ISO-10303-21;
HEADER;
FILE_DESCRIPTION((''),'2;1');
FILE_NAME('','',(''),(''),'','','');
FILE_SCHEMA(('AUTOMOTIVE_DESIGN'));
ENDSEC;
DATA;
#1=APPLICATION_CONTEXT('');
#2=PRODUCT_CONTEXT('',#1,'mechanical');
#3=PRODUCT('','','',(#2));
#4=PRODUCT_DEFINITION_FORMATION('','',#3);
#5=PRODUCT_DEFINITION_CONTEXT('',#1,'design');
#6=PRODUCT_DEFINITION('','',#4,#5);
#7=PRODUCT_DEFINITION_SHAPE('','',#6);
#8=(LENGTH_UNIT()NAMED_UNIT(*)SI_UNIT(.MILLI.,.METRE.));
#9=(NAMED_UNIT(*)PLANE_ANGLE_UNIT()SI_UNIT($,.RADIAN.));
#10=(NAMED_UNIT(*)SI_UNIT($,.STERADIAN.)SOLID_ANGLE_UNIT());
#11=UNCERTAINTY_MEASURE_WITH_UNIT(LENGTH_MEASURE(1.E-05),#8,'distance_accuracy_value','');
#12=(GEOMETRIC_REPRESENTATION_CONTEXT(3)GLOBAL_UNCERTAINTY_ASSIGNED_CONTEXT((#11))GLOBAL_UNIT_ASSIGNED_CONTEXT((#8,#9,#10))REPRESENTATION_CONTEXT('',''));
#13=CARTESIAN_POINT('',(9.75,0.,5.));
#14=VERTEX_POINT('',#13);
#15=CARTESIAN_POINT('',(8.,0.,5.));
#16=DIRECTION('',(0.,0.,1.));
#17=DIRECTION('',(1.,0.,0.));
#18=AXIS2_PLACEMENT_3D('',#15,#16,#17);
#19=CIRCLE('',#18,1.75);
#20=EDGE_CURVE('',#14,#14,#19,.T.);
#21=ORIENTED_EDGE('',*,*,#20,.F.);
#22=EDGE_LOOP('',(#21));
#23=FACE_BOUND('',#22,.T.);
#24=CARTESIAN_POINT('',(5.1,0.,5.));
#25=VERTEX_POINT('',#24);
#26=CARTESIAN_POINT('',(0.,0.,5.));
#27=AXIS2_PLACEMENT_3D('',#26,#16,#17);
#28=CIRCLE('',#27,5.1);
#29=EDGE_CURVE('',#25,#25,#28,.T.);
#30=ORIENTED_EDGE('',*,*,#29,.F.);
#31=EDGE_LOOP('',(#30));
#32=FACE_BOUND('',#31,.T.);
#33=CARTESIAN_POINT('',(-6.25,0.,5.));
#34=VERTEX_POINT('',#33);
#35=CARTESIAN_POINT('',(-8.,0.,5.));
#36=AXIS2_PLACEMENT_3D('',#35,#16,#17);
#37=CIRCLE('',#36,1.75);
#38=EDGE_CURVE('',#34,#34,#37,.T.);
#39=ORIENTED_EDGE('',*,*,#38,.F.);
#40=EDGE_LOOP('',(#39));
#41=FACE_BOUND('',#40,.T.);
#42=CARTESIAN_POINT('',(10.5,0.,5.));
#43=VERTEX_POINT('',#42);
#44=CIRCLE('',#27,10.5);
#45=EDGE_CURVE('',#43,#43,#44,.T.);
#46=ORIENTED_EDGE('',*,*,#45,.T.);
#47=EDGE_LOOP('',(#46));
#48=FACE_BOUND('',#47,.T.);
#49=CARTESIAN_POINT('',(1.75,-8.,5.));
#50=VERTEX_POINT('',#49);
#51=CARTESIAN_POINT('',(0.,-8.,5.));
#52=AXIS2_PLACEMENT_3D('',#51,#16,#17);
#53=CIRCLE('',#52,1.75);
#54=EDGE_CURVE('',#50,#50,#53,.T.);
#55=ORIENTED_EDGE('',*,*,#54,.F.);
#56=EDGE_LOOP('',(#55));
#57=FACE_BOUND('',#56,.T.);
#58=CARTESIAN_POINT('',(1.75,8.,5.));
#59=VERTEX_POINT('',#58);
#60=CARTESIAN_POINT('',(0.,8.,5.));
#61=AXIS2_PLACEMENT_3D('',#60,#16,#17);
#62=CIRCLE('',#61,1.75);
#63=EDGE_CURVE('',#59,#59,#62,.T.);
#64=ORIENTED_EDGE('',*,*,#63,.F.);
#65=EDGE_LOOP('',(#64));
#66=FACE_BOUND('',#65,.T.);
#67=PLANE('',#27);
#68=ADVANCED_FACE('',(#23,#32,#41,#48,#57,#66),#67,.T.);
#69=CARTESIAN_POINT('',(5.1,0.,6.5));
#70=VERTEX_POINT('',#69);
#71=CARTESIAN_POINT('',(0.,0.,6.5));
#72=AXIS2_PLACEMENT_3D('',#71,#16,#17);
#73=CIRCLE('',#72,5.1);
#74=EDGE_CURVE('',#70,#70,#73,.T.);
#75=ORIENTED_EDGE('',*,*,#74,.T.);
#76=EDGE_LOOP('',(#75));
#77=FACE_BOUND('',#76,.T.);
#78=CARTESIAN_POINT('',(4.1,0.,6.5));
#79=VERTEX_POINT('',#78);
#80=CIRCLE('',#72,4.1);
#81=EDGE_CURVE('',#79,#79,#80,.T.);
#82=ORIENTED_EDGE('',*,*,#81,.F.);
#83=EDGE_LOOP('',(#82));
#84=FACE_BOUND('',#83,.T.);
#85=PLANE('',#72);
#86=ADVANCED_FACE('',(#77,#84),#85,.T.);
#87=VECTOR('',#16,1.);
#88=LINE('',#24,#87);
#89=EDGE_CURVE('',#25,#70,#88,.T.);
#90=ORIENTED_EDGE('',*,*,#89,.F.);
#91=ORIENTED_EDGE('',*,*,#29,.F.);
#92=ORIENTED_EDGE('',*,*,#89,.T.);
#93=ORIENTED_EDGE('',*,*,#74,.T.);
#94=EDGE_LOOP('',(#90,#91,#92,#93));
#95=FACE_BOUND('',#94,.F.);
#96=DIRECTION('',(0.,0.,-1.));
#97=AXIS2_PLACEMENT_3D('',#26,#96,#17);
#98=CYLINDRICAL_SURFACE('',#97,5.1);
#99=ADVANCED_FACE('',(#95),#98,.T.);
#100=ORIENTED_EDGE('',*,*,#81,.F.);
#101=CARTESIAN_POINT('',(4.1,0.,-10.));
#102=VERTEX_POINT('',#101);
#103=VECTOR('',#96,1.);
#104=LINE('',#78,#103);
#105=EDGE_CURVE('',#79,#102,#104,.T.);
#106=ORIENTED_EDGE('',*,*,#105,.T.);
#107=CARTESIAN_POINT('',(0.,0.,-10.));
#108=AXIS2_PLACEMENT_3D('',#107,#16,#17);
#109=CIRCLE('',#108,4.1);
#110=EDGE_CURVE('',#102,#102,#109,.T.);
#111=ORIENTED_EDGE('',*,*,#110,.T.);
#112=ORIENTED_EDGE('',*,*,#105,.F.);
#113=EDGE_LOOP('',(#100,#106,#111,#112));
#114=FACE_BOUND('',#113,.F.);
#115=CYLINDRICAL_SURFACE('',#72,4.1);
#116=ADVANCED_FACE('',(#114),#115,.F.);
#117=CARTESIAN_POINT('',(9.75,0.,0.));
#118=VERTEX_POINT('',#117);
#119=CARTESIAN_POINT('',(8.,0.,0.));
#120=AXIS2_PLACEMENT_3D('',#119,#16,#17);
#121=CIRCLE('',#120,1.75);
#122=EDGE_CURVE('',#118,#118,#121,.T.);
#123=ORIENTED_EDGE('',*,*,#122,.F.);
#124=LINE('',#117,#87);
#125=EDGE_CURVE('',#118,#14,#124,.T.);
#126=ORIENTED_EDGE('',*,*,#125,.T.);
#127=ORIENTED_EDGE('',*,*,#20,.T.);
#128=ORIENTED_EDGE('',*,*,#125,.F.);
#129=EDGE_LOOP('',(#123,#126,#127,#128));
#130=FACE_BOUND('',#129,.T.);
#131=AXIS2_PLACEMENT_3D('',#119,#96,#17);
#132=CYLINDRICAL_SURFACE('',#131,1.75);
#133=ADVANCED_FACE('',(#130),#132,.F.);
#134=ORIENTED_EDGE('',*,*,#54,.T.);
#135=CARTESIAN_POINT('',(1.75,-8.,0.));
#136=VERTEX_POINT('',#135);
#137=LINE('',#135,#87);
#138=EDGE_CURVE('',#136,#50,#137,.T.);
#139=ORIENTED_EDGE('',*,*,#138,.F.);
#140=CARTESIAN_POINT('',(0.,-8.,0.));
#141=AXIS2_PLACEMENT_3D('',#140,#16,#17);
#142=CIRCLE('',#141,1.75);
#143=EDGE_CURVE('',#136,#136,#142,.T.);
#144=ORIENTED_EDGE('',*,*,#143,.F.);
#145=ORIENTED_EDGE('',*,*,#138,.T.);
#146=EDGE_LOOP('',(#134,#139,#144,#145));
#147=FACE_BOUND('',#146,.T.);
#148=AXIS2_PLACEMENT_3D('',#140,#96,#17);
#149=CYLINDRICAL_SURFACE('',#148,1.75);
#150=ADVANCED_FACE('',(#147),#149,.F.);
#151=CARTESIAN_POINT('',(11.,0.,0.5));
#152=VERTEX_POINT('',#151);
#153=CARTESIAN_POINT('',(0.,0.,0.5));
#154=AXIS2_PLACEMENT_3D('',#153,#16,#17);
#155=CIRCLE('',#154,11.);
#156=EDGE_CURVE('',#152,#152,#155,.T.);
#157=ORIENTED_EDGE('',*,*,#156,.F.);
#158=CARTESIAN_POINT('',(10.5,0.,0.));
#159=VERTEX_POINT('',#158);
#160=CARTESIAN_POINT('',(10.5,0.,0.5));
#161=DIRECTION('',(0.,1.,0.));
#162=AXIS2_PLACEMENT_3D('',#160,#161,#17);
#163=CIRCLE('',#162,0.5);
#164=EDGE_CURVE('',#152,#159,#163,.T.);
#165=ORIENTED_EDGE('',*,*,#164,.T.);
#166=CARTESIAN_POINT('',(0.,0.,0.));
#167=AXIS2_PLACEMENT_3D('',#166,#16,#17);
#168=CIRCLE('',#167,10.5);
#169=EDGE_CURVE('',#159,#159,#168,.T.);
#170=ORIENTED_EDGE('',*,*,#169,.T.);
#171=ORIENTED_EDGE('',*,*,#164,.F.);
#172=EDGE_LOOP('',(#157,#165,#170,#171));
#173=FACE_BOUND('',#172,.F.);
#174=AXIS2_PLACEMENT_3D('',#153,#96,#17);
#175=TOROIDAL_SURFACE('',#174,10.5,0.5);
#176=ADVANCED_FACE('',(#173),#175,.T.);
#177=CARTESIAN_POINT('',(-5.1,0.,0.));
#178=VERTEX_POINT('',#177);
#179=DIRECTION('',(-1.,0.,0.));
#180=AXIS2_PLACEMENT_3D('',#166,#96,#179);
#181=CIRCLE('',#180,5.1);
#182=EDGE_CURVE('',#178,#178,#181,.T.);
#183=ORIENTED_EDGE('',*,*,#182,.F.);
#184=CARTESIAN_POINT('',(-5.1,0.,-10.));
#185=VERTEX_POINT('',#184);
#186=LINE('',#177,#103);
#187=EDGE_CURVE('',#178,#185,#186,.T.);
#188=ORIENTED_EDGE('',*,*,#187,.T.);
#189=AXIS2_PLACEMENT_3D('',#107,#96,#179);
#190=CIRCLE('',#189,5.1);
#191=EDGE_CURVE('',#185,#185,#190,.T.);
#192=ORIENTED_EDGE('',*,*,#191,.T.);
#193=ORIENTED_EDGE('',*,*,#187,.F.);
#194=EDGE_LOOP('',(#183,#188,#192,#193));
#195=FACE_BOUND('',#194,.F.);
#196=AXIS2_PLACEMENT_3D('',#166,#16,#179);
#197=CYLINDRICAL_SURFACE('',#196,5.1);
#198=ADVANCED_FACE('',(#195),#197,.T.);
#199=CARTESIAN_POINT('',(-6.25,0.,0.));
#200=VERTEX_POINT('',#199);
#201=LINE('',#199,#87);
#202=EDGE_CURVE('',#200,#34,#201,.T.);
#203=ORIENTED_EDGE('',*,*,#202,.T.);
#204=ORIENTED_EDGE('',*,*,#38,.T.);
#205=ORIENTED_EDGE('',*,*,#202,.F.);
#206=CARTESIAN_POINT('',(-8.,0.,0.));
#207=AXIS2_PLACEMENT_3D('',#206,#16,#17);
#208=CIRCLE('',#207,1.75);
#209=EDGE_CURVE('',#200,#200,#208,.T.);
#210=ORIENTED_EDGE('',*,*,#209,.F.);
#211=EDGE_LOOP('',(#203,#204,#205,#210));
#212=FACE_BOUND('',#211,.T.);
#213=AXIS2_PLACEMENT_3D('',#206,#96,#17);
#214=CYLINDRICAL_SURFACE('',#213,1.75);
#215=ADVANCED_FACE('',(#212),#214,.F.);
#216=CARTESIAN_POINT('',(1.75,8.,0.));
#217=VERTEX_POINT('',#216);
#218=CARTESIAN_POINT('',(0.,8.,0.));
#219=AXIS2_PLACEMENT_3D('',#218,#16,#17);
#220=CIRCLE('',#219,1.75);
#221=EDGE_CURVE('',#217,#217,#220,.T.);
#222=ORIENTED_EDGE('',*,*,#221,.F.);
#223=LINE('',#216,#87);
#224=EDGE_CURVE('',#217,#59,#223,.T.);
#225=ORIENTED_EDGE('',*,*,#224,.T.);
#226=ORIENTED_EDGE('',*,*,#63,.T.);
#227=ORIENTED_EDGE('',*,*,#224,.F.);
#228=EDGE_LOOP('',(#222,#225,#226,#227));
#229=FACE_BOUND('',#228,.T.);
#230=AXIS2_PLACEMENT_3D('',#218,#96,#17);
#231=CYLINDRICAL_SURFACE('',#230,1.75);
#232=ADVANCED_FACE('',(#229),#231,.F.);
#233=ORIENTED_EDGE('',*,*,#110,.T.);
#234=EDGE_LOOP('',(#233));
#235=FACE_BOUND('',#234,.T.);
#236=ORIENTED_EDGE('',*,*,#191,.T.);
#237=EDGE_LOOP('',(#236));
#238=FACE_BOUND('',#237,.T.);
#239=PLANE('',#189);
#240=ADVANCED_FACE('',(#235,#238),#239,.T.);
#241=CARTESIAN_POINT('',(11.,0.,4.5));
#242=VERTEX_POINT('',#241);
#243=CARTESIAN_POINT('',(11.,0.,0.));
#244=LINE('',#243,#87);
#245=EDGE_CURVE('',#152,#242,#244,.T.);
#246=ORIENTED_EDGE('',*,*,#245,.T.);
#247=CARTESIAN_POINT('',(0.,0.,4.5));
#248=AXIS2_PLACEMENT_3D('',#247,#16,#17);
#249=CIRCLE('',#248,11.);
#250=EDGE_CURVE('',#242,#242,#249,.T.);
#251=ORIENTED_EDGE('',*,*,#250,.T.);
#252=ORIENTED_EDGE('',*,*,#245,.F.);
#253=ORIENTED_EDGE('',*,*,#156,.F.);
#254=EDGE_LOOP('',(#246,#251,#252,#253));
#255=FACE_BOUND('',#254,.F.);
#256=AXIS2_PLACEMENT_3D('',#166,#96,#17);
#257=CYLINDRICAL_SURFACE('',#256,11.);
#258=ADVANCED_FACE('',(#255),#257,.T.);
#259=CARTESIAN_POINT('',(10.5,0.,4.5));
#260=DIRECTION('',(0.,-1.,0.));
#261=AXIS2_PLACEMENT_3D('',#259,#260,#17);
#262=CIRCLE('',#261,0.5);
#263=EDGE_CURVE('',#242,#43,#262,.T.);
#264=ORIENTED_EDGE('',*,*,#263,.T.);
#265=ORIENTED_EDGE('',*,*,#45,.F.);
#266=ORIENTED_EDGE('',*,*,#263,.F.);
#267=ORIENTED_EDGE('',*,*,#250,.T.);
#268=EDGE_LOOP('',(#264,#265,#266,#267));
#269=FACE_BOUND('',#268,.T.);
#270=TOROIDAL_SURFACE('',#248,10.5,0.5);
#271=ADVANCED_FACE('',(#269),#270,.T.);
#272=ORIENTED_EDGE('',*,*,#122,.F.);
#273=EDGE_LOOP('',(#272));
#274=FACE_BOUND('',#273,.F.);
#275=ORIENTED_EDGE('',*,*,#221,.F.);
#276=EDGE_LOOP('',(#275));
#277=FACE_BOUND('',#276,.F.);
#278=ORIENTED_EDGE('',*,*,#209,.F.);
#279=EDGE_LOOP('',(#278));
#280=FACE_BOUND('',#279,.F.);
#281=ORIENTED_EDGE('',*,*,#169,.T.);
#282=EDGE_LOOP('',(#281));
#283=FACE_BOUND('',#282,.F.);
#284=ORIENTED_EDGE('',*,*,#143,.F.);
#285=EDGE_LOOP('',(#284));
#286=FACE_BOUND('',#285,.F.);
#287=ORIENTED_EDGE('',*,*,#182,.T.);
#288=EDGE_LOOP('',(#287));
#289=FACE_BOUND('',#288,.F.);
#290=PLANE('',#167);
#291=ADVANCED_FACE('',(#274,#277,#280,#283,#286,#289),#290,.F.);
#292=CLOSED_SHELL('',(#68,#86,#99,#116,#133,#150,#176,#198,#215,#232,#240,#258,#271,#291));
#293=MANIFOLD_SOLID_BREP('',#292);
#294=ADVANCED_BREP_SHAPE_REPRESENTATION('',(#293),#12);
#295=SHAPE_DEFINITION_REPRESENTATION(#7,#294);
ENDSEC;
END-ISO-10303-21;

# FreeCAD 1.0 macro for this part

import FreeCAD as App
import Part
import Sketcher
from FreeCAD import Vector


def edges_at(feature, points):
    """Names of the edges that pass closest to the given points."""
    edges = feature.Shape.Edges
    near = lambda p: min(range(len(edges)), key=lambda i: edges[i].distToShape(Part.Vertex(*p))[0])
    return sorted({f"Edge{near(p) + 1}" for p in points})

doc = App.newDocument("Part")
params = doc.addObject("Spreadsheet::Sheet", "Params")
for row, (alias, value) in enumerate([
    ("sketch1_diameter", "22 mm"),
    ("sketch1_diameter2", "3.5 mm"),
    ("pad1_length", "5 mm"),
    ("sketch2_diameter", "10.2 mm"),
    ("pad2_length", "1.5 mm"),
    ("sketch3_diameter", "10.2 mm"),
    ("pad3_length", "10 mm"),
    ("sketch4_diameter", "8.2 mm"),
    ("pocket1_length", "19.5 mm"),
    ("fillet_radius", "0.5 mm"),
], start=1):
    params.set(f"A{row}", alias)
    params.set(f"B{row}", "=" + value)
    params.setAlias(f"B{row}", alias)

body = doc.addObject("PartDesign::Body", "Body")

sketch1 = body.newObject("Sketcher::SketchObject", "Sketch")
sketch1.AttachmentSupport = (doc.getObject("XY_Plane"), [""])
sketch1.MapMode = "FlatFace"
sketch1.addGeometry([
    Part.Circle(Vector(0, 0, 0), Vector(0, 0, 1), 11),
    Part.Circle(Vector(0, -8, 0), Vector(0, 0, 1), 1.8),
    Part.Circle(Vector(-8, 0, 0), Vector(0, 0, 1), 1.8),
    Part.Circle(Vector(8, 0, 0), Vector(0, 0, 1), 1.8),
    Part.Circle(Vector(0, 8, 0), Vector(0, 0, 1), 1.8),
], False)
sketch1.addConstraint([
    Sketcher.Constraint("Coincident", 0, 3, -1, 1),
    Sketcher.Constraint("Equal", 1, 2),
    Sketcher.Constraint("Equal", 2, 3),
    Sketcher.Constraint("Equal", 3, 4),
    Sketcher.Constraint("Symmetric", 2, 3, 3, 3, -1, 1),
    Sketcher.Constraint("Symmetric", 1, 3, 4, 3, -1, 1),
    Sketcher.Constraint("PointOnObject", 1, 3, -2),
    Sketcher.Constraint("PointOnObject", 2, 3, -1),
    Sketcher.Constraint("Diameter", 0, 22.0),
    Sketcher.Constraint("Diameter", 1, 3.5),
    Sketcher.Constraint("DistanceX", 2, 3, 3, 3, 16.0),
    Sketcher.Constraint("DistanceY", 1, 3, 4, 3, 16.0),
])
sketch1.setExpression("Constraints[8]", "Params.sketch1_diameter")
sketch1.setExpression("Constraints[9]", "Params.sketch1_diameter2")
pad1 = body.newObject("PartDesign::Pad", "Pad")
pad1.Profile = sketch1
pad1.setExpression("Length", "Params.pad1_length")

sketch2 = body.newObject("Sketcher::SketchObject", "Sketch001")
sketch2.AttachmentSupport = (doc.getObject("XY_Plane"), [""])
sketch2.MapMode = "FlatFace"
sketch2.AttachmentOffset = App.Placement(Vector(0, 0, 5), App.Rotation())
sketch2.addGeometry(Part.Circle(Vector(0, 0, 0), Vector(0, 0, 1), 5), False)
sketch2.addConstraint([
    Sketcher.Constraint("Coincident", 0, 3, -1, 1),
    Sketcher.Constraint("Diameter", 0, 10.2),
])
sketch2.setExpression("Constraints[1]", "Params.sketch2_diameter")
pad2 = body.newObject("PartDesign::Pad", "Pad001")
pad2.Profile = sketch2
pad2.setExpression("Length", "Params.pad2_length")

sketch3 = body.newObject("Sketcher::SketchObject", "Sketch002")
sketch3.AttachmentSupport = (doc.getObject("XY_Plane"), [""])
sketch3.MapMode = "FlatFace"
sketch3.addGeometry(Part.Circle(Vector(0, 0, 0), Vector(0, 0, 1), 5), False)
sketch3.addConstraint([
    Sketcher.Constraint("Coincident", 0, 3, -1, 1),
    Sketcher.Constraint("Diameter", 0, 10.2),
])
sketch3.setExpression("Constraints[1]", "Params.sketch3_diameter")
pad3 = body.newObject("PartDesign::Pad", "Pad002")
pad3.Profile = sketch3
pad3.setExpression("Length", "Params.pad3_length")
pad3.Reversed = True

sketch4 = body.newObject("Sketcher::SketchObject", "Sketch003")
sketch4.AttachmentSupport = (doc.getObject("XY_Plane"), [""])
sketch4.MapMode = "FlatFace"
sketch4.AttachmentOffset = App.Placement(Vector(0, 0, 6.5), App.Rotation())
sketch4.addGeometry(Part.Circle(Vector(0, 0, 0), Vector(0, 0, 1), 4.1), False)
sketch4.addConstraint([
    Sketcher.Constraint("Coincident", 0, 3, -1, 1),
    Sketcher.Constraint("Diameter", 0, 8.2),
])
sketch4.setExpression("Constraints[1]", "Params.sketch4_diameter")
pocket1 = body.newObject("PartDesign::Pocket", "Pocket")
pocket1.Profile = sketch4
pocket1.setExpression("Length", "Params.pocket1_length")
doc.recompute()

fillet = body.newObject("PartDesign::Fillet", "Fillet")
fillet.Base = (pocket1, edges_at(pocket1, [(-11, 0, 5), (-11, 0, 0)]))
fillet.setExpression("Radius", "Params.fillet_radius")

doc.recompute()
